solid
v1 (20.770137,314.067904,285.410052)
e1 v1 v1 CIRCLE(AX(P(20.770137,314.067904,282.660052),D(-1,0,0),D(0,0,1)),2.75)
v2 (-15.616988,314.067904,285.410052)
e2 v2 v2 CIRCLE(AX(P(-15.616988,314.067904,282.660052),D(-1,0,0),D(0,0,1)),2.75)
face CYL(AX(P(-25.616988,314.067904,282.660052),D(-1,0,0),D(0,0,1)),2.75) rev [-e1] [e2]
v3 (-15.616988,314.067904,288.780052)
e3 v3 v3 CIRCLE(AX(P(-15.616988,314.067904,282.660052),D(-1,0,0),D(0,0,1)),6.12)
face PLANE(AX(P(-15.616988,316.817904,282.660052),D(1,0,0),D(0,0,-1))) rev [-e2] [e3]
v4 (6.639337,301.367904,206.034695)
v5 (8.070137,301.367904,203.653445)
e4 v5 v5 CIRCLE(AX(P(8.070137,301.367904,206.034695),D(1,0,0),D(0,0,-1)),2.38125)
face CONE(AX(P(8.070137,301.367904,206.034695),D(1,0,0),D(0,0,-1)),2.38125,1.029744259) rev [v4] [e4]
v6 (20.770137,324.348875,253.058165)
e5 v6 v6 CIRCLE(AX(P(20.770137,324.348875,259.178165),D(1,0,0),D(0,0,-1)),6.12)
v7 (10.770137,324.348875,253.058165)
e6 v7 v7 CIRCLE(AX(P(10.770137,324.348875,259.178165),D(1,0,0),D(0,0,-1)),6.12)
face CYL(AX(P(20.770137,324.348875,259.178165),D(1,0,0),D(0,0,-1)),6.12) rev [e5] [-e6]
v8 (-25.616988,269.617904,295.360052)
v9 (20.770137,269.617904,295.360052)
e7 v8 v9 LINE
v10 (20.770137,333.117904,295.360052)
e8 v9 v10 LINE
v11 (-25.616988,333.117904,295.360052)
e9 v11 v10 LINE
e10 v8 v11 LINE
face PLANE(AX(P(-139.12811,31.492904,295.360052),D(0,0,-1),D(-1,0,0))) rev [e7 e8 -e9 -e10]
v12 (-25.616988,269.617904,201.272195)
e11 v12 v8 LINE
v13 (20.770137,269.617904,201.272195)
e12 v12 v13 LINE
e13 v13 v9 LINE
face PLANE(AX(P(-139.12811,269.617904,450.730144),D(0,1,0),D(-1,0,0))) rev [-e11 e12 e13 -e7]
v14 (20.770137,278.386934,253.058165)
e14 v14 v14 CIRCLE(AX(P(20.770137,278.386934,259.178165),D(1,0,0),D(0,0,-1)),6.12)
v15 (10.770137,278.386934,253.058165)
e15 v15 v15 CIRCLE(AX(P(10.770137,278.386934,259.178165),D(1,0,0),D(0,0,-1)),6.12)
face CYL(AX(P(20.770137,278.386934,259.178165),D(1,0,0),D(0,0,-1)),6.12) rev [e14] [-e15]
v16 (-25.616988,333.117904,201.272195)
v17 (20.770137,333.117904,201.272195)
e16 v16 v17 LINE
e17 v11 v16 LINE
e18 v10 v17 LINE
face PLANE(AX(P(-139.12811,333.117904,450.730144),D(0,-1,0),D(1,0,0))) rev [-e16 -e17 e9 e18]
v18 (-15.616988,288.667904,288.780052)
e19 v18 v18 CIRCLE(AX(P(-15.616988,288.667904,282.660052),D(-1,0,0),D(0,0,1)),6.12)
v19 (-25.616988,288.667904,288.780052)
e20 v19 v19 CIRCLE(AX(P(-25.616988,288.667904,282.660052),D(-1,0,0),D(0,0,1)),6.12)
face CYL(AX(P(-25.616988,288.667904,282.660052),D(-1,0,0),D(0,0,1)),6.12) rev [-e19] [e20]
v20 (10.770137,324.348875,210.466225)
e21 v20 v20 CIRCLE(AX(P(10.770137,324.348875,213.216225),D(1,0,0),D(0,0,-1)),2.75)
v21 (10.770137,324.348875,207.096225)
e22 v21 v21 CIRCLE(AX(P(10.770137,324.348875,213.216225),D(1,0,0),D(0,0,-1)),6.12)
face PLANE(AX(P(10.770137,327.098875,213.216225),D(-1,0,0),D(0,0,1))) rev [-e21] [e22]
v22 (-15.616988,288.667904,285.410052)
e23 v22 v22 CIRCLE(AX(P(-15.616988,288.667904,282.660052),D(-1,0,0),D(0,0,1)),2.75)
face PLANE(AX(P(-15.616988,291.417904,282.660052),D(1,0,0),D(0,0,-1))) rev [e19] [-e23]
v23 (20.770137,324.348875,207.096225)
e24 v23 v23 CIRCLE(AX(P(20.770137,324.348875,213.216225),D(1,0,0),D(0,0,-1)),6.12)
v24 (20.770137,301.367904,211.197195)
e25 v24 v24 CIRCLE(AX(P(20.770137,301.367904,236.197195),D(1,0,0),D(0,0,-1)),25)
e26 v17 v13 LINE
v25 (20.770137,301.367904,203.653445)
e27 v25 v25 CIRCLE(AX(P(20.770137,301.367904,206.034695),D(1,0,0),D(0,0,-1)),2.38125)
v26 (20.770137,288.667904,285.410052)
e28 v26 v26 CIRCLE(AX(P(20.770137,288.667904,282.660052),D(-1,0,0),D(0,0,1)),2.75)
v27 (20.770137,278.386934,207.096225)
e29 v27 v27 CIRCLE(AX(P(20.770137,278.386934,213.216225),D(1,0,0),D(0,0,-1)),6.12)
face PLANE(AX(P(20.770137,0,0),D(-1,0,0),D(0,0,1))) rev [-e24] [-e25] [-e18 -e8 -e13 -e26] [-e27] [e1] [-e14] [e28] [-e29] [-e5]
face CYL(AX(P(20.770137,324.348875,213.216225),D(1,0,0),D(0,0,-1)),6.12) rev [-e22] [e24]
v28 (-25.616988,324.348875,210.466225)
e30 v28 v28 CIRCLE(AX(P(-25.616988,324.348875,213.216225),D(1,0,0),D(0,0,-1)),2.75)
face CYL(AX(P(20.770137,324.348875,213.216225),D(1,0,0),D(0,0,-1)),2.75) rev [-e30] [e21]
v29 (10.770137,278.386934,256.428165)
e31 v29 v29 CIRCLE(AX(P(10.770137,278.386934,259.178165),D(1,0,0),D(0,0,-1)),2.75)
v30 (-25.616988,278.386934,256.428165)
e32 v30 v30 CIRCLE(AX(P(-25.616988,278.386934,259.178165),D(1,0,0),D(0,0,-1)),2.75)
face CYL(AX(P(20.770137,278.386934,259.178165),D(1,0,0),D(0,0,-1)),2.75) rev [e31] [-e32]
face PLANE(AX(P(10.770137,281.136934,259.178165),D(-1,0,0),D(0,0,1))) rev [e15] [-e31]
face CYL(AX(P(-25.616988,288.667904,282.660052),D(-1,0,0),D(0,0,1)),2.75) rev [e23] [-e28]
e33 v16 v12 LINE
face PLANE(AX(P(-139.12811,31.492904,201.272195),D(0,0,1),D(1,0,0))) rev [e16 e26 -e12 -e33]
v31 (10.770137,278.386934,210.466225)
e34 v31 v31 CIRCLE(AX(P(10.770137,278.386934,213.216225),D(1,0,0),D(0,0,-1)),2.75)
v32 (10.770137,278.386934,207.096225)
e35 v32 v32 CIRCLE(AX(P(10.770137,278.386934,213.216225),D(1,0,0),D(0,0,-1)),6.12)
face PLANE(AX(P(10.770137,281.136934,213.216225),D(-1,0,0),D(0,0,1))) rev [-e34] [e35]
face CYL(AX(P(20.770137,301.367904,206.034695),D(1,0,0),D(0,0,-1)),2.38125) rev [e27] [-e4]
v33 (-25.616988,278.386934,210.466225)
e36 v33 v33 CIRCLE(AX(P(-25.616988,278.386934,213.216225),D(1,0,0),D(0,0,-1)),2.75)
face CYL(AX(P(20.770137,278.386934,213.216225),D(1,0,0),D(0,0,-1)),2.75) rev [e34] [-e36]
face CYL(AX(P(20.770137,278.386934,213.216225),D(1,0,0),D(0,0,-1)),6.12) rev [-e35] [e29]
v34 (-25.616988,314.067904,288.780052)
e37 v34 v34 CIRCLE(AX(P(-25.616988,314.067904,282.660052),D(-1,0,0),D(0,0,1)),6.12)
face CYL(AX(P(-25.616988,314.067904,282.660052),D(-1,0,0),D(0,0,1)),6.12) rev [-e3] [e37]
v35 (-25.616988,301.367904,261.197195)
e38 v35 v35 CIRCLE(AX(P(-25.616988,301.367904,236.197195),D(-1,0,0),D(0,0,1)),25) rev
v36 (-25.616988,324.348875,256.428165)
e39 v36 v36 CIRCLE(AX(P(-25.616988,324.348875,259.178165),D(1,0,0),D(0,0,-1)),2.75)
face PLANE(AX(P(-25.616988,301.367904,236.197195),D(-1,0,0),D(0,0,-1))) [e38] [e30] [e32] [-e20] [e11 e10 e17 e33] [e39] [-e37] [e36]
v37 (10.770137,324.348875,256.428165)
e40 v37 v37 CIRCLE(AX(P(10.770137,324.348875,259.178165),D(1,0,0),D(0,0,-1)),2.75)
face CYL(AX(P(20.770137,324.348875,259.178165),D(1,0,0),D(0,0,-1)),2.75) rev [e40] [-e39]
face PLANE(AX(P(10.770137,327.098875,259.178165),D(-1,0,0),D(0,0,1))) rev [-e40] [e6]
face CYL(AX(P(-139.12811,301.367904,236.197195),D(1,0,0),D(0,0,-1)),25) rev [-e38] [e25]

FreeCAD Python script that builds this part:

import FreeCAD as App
import Part
import Sketcher
Q = App.Units.Quantity


def add_polygon(sketch, points):
    """Adds a closed chain of lines whose ends are joined by coincident constraints."""
    first, n = sketch.GeometryCount, len(points)
    for a, b in zip(points, points[1:] + points[:1]):
        sketch.addGeometry(Part.LineSegment(App.Vector(*a, 0), App.Vector(*b, 0)), False)
    for i in range(n):
        sketch.addConstraint(Sketcher.Constraint("Coincident", first + i, 2, first + (i + 1) % n, 1))

doc = App.newDocument("Part")
body = doc.addObject("PartDesign::Body", "Body")

# Sketch on YZ plane
sketch1 = body.newObject("Sketcher::SketchObject", "Sketch")
sketch1.AttachmentSupport = (doc.getObject("YZ_Plane"), [""])
sketch1.MapMode = "FlatFace"
sketch1.AttachmentOffset = App.Placement(App.Vector(0, 0, 20.770137), App.Rotation())
add_polygon(sketch1, [(333.117904, 201.272195), (269.617904, 201.272195), (269.617904, 295.360052), (333.117904, 295.360052)])  # lines 0-3
sketch1.addGeometry(Part.Circle(App.Vector(301.367904, 236.197195, 0), App.Vector(0, 0, 1), 25), False)  # 4
sketch1.addConstraint([
    Sketcher.Constraint("Horizontal", 0),
    Sketcher.Constraint("Vertical", 1),
    Sketcher.Constraint("Horizontal", 2),
    Sketcher.Constraint("Vertical", 3),
    Sketcher.Constraint("DistanceX", 0, 2, 0, 1, Q("2.5 in")),
    Sketcher.Constraint("Diameter", 4, 50.0),
    Sketcher.Constraint("DistanceX", 0, 2, 4, 3, Q("1.25 in")),
    Sketcher.Constraint("DistanceY", 0, 2, 4, 3, Q("1.375 in")),
    Sketcher.Constraint("DistanceY", 1, 1, 1, 2, 94.087857),
    Sketcher.Constraint("DistanceY", -1, 1, 1, 2, 295.360052),
    Sketcher.Constraint("DistanceX", -1, 1, 4, 3, 301.367904),
])
pad1 = body.newObject("PartDesign::Pad", "Pad")
pad1.Profile = sketch1
pad1.Length = 46.387125
pad1.Reversed = True

# Sketch on YZ plane
sketch2 = body.newObject("Sketcher::SketchObject", "Sketch001")
sketch2.AttachmentSupport = (doc.getObject("YZ_Plane"), [""])
sketch2.MapMode = "FlatFace"
sketch2.AttachmentOffset = App.Placement(App.Vector(0, 0, 20.770137), App.Rotation())
sketch2.addGeometry([
    Part.Circle(App.Vector(324.348875, 259.178165, 0), App.Vector(0, 0, 1), 2.75),
    Part.Circle(App.Vector(278.386934, 259.178165, 0), App.Vector(0, 0, 1), 2.75),
    Part.Circle(App.Vector(278.386934, 213.216225, 0), App.Vector(0, 0, 1), 2.75),
    Part.Circle(App.Vector(324.348875, 213.216225, 0), App.Vector(0, 0, 1), 2.75),
], False)
sketch2.addConstraint([
    Sketcher.Constraint("Equal", 0, 1),
    Sketcher.Constraint("Equal", 1, 2),
    Sketcher.Constraint("Equal", 2, 3),
    Sketcher.Constraint("Horizontal", 0, 3, 1, 3),
    Sketcher.Constraint("Horizontal", 2, 3, 3, 3),
    Sketcher.Constraint("Vertical", 1, 3, 2, 3),
    Sketcher.Constraint("Vertical", 0, 3, 3, 3),
    Sketcher.Constraint("Diameter", 0, 5.5),
    Sketcher.Constraint("DistanceX", 1, 3, 0, 3, 45.961941),
    Sketcher.Constraint("DistanceY", 2, 3, 1, 3, 45.961941),
    Sketcher.Constraint("DistanceX", -1, 1, 0, 3, 324.348875),
    Sketcher.Constraint("DistanceY", -1, 1, 0, 3, 259.178165),
])
doc.recompute()
hole = body.newObject("PartDesign::Hole", "Hole")
hole.Profile = sketch2
hole.ThreadType = "None"
hole.Diameter = 5.5
hole.DepthType = "ThroughAll"
hole.HoleCutType = "Counterbore"
hole.HoleCutDiameter = 12.24
hole.HoleCutDepth = 10

# Sketch on YZ plane
sketch3 = body.newObject("Sketcher::SketchObject", "Sketch002")
sketch3.AttachmentSupport = (doc.getObject("YZ_Plane"), [""])
sketch3.MapMode = "FlatFace"
sketch3.AttachmentOffset = App.Placement(App.Vector(0, 0, -25.616988), App.Rotation())
sketch3.addGeometry([
    Part.Circle(App.Vector(314.067904, 282.660052, 0), App.Vector(0, 0, 1), 2.75),
    Part.Circle(App.Vector(288.667904, 282.660052, 0), App.Vector(0, 0, 1), 2.75),
], False)
sketch3.addConstraint([
    Sketcher.Constraint("Equal", 0, 1),
    Sketcher.Constraint("Horizontal", 0, 3, 1, 3),
    Sketcher.Constraint("DistanceX", 1, 3, 0, 3, Q("1 in")),
    Sketcher.Constraint("Diameter", 0, 5.5),
    Sketcher.Constraint("DistanceY", -1, 1, 0, 3, 282.660052),
    Sketcher.Constraint("DistanceX", -1, 1, 0, 3, 314.067904),
])
doc.recompute()
hole2 = body.newObject("PartDesign::Hole", "Hole001")
hole2.Profile = sketch3
hole2.ThreadType = "None"
hole2.Diameter = 5.5
hole2.DepthType = "ThroughAll"
hole2.HoleCutType = "Counterbore"
hole2.HoleCutDiameter = 12.24
hole2.HoleCutDepth = 10
hole2.Reversed = True

# Sketch on YZ plane
sketch4 = body.newObject("Sketcher::SketchObject", "Sketch003")
sketch4.AttachmentSupport = (doc.getObject("YZ_Plane"), [""])
sketch4.MapMode = "FlatFace"
sketch4.AttachmentOffset = App.Placement(App.Vector(0, 0, 20.770137), App.Rotation())
sketch4.addGeometry(Part.Circle(App.Vector(301.367904, 206.034695, 0), App.Vector(0, 0, 1), 2.38125), False)
sketch4.addConstraint([
    Sketcher.Constraint("Diameter", 0, Q("0.1875 in")),
    Sketcher.Constraint("DistanceX", -1, 1, 0, 3, 301.367904),
    Sketcher.Constraint("DistanceY", -1, 1, 0, 3, 206.034695),
])
doc.recompute()
hole3 = body.newObject("PartDesign::Hole", "Hole002")
hole3.Profile = sketch4
hole3.ThreadType = "None"
hole3.Diameter = Q("0.1875 in")
hole3.DepthType = "Dimension"
hole3.Depth = Q("0.5 in")
hole3.DrillPoint = "Angled"
hole3.DrillPointAngle = 118

doc.recompute()
